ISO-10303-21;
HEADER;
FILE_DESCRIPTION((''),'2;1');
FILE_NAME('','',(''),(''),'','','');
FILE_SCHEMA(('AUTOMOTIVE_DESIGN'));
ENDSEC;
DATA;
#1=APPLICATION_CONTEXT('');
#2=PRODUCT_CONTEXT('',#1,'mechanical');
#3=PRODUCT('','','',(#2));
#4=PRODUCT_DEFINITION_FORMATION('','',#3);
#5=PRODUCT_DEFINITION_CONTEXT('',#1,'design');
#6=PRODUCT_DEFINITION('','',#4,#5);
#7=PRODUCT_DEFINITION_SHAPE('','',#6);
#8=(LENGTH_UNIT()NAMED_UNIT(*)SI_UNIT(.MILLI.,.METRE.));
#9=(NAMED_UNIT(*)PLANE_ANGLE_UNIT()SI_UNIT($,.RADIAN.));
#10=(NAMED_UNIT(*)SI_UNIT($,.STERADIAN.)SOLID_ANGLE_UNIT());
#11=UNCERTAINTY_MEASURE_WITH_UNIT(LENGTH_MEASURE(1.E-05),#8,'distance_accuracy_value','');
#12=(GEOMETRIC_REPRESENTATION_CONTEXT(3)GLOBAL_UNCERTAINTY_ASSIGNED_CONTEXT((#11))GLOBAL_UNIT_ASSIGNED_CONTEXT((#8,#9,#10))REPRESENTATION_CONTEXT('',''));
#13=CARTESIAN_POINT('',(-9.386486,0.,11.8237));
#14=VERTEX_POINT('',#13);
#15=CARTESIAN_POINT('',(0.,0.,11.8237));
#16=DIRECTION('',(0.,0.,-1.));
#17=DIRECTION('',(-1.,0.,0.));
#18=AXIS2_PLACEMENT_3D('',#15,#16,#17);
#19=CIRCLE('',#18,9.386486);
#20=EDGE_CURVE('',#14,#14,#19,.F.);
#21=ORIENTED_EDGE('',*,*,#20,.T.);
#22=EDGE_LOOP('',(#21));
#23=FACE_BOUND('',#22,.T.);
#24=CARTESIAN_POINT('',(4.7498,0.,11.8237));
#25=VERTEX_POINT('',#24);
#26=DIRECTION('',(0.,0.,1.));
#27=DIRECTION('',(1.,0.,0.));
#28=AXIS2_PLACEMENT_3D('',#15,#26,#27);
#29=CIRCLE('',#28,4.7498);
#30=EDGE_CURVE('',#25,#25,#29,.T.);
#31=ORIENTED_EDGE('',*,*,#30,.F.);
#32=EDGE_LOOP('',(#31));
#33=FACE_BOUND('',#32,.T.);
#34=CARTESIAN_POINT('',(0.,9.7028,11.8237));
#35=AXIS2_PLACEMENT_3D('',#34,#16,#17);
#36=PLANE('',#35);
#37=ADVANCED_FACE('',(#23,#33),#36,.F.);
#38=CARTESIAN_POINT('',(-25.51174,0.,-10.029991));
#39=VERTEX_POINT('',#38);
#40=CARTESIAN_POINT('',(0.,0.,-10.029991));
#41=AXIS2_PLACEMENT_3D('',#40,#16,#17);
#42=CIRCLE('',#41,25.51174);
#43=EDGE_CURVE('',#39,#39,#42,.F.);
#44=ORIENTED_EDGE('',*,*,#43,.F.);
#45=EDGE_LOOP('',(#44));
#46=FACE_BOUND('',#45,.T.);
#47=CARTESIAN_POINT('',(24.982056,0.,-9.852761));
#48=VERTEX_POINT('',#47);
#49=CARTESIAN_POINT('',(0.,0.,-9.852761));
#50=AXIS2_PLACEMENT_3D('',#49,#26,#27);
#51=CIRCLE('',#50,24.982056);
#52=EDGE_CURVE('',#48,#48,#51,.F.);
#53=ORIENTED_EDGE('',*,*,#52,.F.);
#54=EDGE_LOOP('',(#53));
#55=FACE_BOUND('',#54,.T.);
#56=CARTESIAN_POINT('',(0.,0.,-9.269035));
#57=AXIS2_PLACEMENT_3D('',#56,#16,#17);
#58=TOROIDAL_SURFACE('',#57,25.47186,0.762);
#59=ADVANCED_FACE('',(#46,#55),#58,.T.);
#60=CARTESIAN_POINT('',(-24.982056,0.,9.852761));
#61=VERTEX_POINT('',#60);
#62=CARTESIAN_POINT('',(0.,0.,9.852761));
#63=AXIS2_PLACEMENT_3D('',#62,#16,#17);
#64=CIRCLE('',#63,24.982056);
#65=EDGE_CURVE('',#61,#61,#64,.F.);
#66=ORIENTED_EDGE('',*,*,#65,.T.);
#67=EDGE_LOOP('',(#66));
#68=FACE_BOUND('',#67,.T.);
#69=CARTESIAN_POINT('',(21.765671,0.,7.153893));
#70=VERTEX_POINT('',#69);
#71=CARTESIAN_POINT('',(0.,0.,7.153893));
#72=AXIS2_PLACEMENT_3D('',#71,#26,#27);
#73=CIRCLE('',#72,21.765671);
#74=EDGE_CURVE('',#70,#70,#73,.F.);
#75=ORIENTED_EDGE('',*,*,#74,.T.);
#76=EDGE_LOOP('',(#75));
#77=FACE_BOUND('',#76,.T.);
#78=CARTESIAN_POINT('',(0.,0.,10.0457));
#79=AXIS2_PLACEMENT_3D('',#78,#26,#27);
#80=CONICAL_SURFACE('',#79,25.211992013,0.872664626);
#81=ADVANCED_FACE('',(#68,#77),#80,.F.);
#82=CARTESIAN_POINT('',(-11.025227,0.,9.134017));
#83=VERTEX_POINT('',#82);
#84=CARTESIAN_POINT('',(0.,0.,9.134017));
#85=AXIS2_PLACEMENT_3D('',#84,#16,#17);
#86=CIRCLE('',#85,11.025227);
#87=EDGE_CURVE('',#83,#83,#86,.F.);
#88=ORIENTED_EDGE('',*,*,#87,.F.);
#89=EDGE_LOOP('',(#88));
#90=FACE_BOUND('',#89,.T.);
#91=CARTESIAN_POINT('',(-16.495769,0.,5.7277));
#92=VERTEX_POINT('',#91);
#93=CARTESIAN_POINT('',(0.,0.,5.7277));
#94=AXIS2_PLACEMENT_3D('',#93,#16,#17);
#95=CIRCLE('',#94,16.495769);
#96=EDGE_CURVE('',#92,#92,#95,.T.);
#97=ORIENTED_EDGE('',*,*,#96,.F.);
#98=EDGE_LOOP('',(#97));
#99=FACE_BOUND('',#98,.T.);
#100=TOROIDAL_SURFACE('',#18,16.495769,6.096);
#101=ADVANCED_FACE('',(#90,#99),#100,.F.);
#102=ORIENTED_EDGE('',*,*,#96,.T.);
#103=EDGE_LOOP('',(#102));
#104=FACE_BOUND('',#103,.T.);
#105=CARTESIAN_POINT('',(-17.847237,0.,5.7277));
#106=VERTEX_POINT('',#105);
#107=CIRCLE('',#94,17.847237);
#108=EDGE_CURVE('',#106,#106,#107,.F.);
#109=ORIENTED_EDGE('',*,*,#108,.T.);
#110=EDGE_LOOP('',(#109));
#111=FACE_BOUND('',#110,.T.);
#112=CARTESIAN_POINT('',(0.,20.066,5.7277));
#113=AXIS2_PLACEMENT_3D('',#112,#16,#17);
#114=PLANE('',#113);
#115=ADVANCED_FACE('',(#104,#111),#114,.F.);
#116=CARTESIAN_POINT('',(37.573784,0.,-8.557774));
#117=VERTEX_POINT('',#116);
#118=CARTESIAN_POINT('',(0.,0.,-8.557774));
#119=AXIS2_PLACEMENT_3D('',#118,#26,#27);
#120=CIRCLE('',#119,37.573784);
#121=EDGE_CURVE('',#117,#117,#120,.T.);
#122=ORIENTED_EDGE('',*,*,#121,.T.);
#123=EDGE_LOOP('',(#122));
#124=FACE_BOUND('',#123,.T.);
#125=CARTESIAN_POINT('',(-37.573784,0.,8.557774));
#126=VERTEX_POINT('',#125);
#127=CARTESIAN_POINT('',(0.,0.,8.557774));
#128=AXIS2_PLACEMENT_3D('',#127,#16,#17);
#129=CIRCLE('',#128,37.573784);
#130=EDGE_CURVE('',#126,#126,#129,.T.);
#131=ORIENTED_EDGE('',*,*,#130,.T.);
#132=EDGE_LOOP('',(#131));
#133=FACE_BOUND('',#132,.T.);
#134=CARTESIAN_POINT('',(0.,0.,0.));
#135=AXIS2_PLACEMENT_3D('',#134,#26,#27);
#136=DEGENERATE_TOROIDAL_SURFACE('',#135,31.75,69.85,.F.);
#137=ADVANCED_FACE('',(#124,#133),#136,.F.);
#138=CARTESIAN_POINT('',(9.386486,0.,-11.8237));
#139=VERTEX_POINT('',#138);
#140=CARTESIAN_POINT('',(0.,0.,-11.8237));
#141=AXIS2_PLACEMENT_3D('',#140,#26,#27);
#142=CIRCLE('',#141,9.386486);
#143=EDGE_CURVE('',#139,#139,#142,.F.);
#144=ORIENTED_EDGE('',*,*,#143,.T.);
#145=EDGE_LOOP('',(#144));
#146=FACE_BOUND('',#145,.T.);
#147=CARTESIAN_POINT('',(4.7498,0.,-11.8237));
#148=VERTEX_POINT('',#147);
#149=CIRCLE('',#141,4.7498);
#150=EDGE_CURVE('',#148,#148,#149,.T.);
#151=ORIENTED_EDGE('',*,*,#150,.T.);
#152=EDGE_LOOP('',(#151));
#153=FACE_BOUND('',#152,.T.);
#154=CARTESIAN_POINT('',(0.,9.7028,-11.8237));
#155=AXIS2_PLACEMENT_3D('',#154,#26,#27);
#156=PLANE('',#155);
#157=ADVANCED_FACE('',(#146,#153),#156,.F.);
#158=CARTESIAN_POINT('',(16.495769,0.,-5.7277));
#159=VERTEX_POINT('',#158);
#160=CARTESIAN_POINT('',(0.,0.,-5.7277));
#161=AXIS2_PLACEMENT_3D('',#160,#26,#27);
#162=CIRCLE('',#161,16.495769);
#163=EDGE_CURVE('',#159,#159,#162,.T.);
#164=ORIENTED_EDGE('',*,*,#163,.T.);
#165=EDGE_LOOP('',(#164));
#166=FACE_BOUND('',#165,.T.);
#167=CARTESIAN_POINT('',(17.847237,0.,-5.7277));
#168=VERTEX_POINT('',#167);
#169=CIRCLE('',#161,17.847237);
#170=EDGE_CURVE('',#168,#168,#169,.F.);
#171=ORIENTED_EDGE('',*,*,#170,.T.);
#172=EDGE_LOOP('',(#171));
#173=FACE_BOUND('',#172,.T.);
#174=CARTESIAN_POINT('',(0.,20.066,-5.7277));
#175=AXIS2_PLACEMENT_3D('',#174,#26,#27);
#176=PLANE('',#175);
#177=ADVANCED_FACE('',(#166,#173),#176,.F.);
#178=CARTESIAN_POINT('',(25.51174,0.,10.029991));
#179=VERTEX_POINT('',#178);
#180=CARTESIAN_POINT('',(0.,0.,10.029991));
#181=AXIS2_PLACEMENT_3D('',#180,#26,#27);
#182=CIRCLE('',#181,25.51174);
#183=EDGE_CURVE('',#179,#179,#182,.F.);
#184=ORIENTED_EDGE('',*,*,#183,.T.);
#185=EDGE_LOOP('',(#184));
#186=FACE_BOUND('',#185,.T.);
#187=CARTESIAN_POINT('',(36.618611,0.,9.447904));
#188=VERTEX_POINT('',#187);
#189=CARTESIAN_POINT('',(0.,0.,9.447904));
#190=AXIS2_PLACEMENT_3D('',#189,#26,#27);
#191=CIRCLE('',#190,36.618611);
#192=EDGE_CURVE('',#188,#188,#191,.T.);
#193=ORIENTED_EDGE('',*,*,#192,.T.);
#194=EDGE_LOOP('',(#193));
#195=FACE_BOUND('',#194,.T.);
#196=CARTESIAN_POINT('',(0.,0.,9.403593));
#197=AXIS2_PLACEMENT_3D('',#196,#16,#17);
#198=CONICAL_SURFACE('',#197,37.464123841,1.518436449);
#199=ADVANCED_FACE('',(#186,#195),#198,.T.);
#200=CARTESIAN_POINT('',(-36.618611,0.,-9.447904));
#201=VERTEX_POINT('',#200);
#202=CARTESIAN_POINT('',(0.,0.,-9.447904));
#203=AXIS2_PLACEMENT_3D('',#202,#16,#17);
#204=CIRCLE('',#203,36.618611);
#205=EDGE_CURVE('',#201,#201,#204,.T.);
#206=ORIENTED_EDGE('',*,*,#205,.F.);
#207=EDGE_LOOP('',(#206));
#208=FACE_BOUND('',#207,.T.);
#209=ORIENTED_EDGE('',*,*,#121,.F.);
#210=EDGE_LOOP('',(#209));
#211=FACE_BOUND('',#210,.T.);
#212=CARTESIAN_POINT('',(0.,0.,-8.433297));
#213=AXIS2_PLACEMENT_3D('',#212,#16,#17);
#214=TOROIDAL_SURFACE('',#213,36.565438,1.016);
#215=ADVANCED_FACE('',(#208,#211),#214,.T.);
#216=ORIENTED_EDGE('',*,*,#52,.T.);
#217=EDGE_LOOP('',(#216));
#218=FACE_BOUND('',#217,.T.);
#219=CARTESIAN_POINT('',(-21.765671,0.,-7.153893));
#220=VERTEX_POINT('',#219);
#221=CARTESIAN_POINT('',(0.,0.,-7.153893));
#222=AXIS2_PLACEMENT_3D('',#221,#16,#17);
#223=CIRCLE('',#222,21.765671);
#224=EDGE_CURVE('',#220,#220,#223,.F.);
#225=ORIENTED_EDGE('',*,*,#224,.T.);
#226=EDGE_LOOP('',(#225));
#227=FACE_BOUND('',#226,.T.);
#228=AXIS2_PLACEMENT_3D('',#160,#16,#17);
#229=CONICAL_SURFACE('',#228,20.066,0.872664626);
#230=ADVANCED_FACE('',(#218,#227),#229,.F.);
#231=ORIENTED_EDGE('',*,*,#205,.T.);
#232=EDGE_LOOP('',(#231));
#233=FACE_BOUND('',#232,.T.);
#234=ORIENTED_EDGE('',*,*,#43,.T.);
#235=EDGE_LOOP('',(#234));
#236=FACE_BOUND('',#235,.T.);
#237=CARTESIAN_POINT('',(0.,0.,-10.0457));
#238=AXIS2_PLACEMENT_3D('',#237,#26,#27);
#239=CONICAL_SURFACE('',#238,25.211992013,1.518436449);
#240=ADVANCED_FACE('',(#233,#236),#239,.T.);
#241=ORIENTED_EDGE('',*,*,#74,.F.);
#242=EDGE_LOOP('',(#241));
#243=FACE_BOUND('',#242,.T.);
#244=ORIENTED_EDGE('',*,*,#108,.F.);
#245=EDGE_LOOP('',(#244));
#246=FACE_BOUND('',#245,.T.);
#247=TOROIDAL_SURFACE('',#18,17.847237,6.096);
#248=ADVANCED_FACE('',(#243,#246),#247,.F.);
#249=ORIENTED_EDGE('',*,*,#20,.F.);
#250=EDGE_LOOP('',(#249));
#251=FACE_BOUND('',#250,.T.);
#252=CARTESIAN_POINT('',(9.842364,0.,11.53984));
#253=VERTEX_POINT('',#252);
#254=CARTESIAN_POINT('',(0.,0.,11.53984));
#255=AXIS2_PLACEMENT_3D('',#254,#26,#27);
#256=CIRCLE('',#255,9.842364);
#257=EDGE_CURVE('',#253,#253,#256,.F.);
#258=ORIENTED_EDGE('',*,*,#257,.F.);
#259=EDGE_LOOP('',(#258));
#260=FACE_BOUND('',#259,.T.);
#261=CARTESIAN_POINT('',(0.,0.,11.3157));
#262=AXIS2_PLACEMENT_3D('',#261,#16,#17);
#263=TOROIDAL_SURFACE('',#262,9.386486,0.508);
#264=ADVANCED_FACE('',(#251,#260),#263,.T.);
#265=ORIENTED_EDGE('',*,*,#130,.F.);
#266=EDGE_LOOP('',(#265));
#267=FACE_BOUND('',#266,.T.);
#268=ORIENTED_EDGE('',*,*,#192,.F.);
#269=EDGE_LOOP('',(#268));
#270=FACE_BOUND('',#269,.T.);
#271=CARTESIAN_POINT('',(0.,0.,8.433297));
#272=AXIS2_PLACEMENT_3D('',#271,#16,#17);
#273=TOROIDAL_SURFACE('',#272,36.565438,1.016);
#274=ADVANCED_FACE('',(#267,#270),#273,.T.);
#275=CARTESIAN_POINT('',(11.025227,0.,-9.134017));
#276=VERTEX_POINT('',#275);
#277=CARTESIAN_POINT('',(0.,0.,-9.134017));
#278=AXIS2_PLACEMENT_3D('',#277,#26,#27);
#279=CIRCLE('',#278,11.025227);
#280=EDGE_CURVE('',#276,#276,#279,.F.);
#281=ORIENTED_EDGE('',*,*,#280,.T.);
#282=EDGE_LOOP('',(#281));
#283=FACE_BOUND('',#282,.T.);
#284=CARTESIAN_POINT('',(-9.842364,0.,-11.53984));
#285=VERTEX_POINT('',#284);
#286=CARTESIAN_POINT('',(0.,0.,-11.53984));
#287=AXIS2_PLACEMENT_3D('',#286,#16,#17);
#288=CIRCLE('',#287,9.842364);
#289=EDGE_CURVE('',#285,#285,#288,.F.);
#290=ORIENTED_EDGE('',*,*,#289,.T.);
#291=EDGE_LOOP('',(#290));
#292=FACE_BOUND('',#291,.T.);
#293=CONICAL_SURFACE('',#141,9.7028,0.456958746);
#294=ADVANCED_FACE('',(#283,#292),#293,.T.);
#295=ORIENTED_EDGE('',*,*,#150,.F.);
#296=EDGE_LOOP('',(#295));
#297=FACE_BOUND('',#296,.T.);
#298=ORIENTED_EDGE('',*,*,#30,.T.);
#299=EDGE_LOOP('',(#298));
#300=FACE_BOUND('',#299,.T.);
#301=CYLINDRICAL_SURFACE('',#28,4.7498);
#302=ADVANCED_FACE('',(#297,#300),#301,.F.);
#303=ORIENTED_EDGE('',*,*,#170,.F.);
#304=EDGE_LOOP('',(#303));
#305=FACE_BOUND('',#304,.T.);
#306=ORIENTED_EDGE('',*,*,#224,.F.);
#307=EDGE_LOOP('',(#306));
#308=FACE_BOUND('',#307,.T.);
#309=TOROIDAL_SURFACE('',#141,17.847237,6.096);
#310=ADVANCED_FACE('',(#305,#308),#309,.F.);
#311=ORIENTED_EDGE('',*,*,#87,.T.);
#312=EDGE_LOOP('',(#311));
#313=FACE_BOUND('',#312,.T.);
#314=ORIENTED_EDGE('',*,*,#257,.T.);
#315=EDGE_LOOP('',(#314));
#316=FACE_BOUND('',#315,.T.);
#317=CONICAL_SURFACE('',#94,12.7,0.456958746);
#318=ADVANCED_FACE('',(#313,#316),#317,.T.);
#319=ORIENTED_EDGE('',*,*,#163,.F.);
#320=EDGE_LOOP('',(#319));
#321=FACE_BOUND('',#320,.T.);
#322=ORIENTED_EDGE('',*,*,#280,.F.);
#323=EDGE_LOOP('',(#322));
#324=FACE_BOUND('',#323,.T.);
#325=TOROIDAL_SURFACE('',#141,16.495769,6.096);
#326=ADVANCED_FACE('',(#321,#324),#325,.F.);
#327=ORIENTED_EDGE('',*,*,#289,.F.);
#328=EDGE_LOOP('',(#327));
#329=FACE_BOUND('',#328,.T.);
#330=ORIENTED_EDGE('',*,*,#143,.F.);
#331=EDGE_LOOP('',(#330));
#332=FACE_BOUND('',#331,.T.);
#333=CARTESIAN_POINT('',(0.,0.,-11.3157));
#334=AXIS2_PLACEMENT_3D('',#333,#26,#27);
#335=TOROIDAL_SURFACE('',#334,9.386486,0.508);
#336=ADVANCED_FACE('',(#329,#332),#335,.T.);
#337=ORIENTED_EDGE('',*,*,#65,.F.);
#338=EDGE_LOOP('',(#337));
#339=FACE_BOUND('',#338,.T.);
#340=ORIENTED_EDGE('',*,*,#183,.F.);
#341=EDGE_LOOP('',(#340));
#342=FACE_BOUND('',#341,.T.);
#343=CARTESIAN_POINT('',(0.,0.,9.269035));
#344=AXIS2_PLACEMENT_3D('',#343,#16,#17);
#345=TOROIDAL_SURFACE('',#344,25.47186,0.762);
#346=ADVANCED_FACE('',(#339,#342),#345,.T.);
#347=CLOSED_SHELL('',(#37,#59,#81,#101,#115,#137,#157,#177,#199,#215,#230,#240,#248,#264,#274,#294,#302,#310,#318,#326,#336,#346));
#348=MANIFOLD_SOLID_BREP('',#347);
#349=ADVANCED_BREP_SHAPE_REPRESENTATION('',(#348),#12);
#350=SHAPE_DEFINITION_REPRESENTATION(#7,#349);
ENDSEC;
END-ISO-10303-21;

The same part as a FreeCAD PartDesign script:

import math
import FreeCAD as App
import Part
import Sketcher

V = App.Vector
Q = App.Units.Quantity


def edges_at(feature, points):
    """Names of the edges that pass closest to the given points."""
    edges = feature.Shape.Edges
    near = lambda p: min(range(len(edges)), key=lambda i: edges[i].distToShape(Part.Vertex(*p))[0])
    return sorted({f"Edge{near(p) + 1}" for p in points})


def add_polygon(sketch, points):
    """Adds a closed chain of lines whose ends are joined by coincident constraints."""
    first, n = sketch.GeometryCount, len(points)
    for a, b in zip(points, points[1:] + points[:1]):
        sketch.addGeometry(Part.LineSegment(App.Vector(*a, 0), App.Vector(*b, 0)), False)
    for i in range(n):
        sketch.addConstraint(Sketcher.Constraint("Coincident", first + i, 2, first + (i + 1) % n, 1))

doc = App.newDocument("Part")
params = doc.addObject("Spreadsheet::Sheet", "Params")
for row, (alias, value) in enumerate([
    ("sketch1_radius", "2.75 in"),
    ("sketch1_width", "0.29 in"),
    ("sketch1_width2", "0.382 in"),
    ("sketch1_height", "0.931 in"),
    ("revolution_angle", "360 deg"),
    ("sketch2_width", "0.187 in"),
    ("sketch2_height", "0.931 in"),
    ("groove_angle", "360 deg"),
    ("fillet_radius", "0.04 in"),
    ("fillet2_radius", "0.24 in"),
    ("fillet3_radius", "0.03 in"),
    ("fillet4_radius", "0.02 in"),
    ("sketch3_width", "0.187 in"),
    ("sketch3_height", "0.931 in"),
    ("revolution2_angle", "360 deg"),
    ("sketch4_diameter", "0.25 in"),
    ("sketch5_diameter", "0.374 in"),
], start=1):
    params.set(f"A{row}", alias)
    params.set(f"B{row}", "=" + value)
    params.setAlias(f"B{row}", alias)

body = doc.addObject("PartDesign::Body", "Body")

# Sketch on YZ plane
sketch1 = body.newObject("Sketcher::SketchObject", "Sketch")
sketch1.AttachmentSupport = (doc.getObject("YZ_Plane"), [""])
sketch1.MapMode = "FlatFace"
sketch1.addGeometry([
    Part.LineSegment(V(20, -6, 0), V(25, -10, 0)),  # 0
    Part.LineSegment(V(25, -10, 0), V(37, -9, 0)),  # 1
    Part.ArcOfCircle(Part.Circle(V(-32, 0, 0), V(0, 0, 1), 70), math.radians(-7.74), math.radians(7.74)),  # 2
    Part.LineSegment(V(37, 9, 0), V(25, 10, 0)),  # 3
    Part.LineSegment(V(25, 10, 0), V(20, 6, 0)),  # 4
    Part.LineSegment(V(20, 6, 0), V(13, 6, 0)),  # 5
    Part.LineSegment(V(13, 6, 0), V(10, 12, 0)),  # 6
    Part.LineSegment(V(10, 12, 0), V(0, 12, 0)),  # 7
    Part.LineSegment(V(0, 12, 0), V(0, -12, 0)),  # 8
    Part.LineSegment(V(0, -12, 0), V(10, -12, 0)),  # 9
    Part.LineSegment(V(10, -12, 0), V(13, -6, 0)),  # 10
    Part.LineSegment(V(13, -6, 0), V(20, -6, 0)),  # 11
], False)
sketch1.addConstraint([
    Sketcher.Constraint("Coincident", 0, 2, 1, 1),
    Sketcher.Constraint("Coincident", 1, 2, 2, 1),
    Sketcher.Constraint("Coincident", 2, 2, 3, 1),
    Sketcher.Constraint("Coincident", 3, 2, 4, 1),
    Sketcher.Constraint("Coincident", 4, 2, 5, 1),
    Sketcher.Constraint("Coincident", 5, 2, 6, 1),
    Sketcher.Constraint("Coincident", 6, 2, 7, 1),
    Sketcher.Constraint("Coincident", 7, 2, 8, 1),
    Sketcher.Constraint("Coincident", 8, 2, 9, 1),
    Sketcher.Constraint("Coincident", 9, 2, 10, 1),
    Sketcher.Constraint("Coincident", 10, 2, 11, 1),
    Sketcher.Constraint("Coincident", 11, 2, 0, 1),
    Sketcher.Constraint("Horizontal", 5),
    Sketcher.Constraint("Horizontal", 7),
    Sketcher.Constraint("Vertical", 8),
    Sketcher.Constraint("Horizontal", 9),
    Sketcher.Constraint("Horizontal", 11),
    Sketcher.Constraint("Symmetric", 7, 2, 8, 2, -1, 1),
    Sketcher.Constraint("Symmetric", 1, 2, 2, 2, -1),
    Sketcher.Constraint("Symmetric", 0, 2, 3, 2, -1),
    Sketcher.Constraint("Symmetric", 5, 2, 10, 2, -1),
    Sketcher.Constraint("Vertical", 6, 2, 9, 2),
    Sketcher.Constraint("Vertical", 4, 2, 11, 2),
    Sketcher.Constraint("Radius", 2, Q("2.75 in")),
    Sketcher.Constraint("Angle", 0, Q("-40 deg")),
    Sketcher.Constraint("Angle", 1, Q("3 deg")),
    Sketcher.Constraint("DistanceX", 5, 2, 5, 1, Q("0.29 in")),
    Sketcher.Constraint("DistanceX", -1, 1, 5, 2, Q("0.5 in")),
    Sketcher.Constraint("DistanceX", 7, 2, 7, 1, Q("0.382 in")),
    Sketcher.Constraint("DistanceY", 8, 2, 8, 1, Q("0.931 in")),
    Sketcher.Constraint("DistanceX", 2, 3, -1, 1, Q("1.25 in")),
    Sketcher.Constraint("DistanceY", 4, 2, 3, 2, Q("0.17 in")),
    Sketcher.Constraint("DistanceY", 5, 2, 6, 2, Q("0.24 in")),
])
sketch1.setExpression("Constraints[23]", "Params.sketch1_radius")
sketch1.setExpression("Constraints[26]", "Params.sketch1_width")
sketch1.setExpression("Constraints[28]", "Params.sketch1_width2")
sketch1.setExpression("Constraints[29]", "Params.sketch1_height")
revolution = body.newObject("PartDesign::Revolution", "Revolution")
revolution.Profile = sketch1
revolution.ReferenceAxis = (sketch1, ["V_Axis"])
revolution.setExpression("Angle", "Params.revolution_angle")

# Sketch on YZ plane
sketch2 = body.newObject("Sketcher::SketchObject", "Sketch001")
sketch2.AttachmentSupport = (doc.getObject("YZ_Plane"), [""])
sketch2.MapMode = "FlatFace"
add_polygon(sketch2, [(4.7, 11.8), (0, 11.8), (0, -11.8), (4.7, -11.8)])  # lines 0-3
sketch2.addConstraint([
    Sketcher.Constraint("Horizontal", 0),
    Sketcher.Constraint("Vertical", 1),
    Sketcher.Constraint("Horizontal", 2),
    Sketcher.Constraint("Vertical", 3),
    Sketcher.Constraint("Symmetric", 0, 2, 1, 2, -1, 1),
    Sketcher.Constraint("DistanceX", 0, 2, 0, 1, Q("0.187 in")),
    Sketcher.Constraint("DistanceY", 1, 2, 1, 1, Q("0.931 in")),
])
sketch2.setExpression("Constraints[9]", "Params.sketch2_width")
sketch2.setExpression("Constraints[10]", "Params.sketch2_height")
groove = body.newObject("PartDesign::Groove", "Groove")
groove.Profile = sketch2
groove.ReferenceAxis = (sketch2, ["V_Axis"])
groove.setExpression("Angle", "Params.groove_angle")
doc.recompute()

fillet = body.newObject("PartDesign::Fillet", "Fillet")
fillet.Base = (groove, edges_at(groove, [(-37.464, 0, -9.404), (-37.464, 0, 9.404)]))
fillet.setExpression("Radius", "Params.fillet_radius")
doc.recompute()

fillet2 = body.newObject("PartDesign::Fillet", "Fillet001")
fillet2.Base = (fillet, edges_at(fillet, [
    (-20.066, 0, 5.728),
    (-12.7, 0, 5.728),
    (-12.7, 0, -5.728),
    (-20.066, 0, -5.728),
]))
fillet2.setExpression("Radius", "Params.fillet2_radius")
doc.recompute()

fillet3 = body.newObject("PartDesign::Fillet", "Fillet002")
fillet3.Base = (fillet2, edges_at(fillet2, [(-25.212, 0, -10.046), (-25.212, 0, 10.046)]))
fillet3.setExpression("Radius", "Params.fillet3_radius")
doc.recompute()

fillet4 = body.newObject("PartDesign::Fillet", "Fillet003")
fillet4.Base = (fillet3, edges_at(fillet3, [(-9.703, 0, 11.824), (-9.703, 0, -11.824)]))
fillet4.setExpression("Radius", "Params.fillet4_radius")
body2 = doc.addObject("PartDesign::Body", "Body001")

# Sketch on YZ plane
sketch3 = body2.newObject("Sketcher::SketchObject", "Sketch002")
sketch3.AttachmentSupport = (doc.getObject("YZ_Plane001"), [""])
sketch3.MapMode = "FlatFace"
add_polygon(sketch3, [(4.7, 11.8), (0, 11.8), (0, -11.8), (4.7, -11.8)])  # lines 0-3
sketch3.addConstraint([
    Sketcher.Constraint("Horizontal", 0),
    Sketcher.Constraint("Vertical", 1),
    Sketcher.Constraint("Horizontal", 2),
    Sketcher.Constraint("Vertical", 3),
    Sketcher.Constraint("Symmetric", 0, 2, 1, 2, -1, 1),
    Sketcher.Constraint("DistanceX", 0, 2, 0, 1, Q("0.187 in")),
    Sketcher.Constraint("DistanceY", 1, 2, 1, 1, Q("0.931 in")),
])
sketch3.setExpression("Constraints[9]", "Params.sketch3_width")
sketch3.setExpression("Constraints[10]", "Params.sketch3_height")
revolution2 = body2.newObject("PartDesign::Revolution", "Revolution001")
revolution2.Profile = sketch3
revolution2.ReferenceAxis = (sketch3, ["V_Axis"])
revolution2.setExpression("Angle", "Params.revolution2_angle")

# Sketch on XY plane
sketch4 = body2.newObject("Sketcher::SketchObject", "Sketch003")
sketch4.AttachmentSupport = (doc.getObject("XY_Plane001"), [""])
sketch4.MapMode = "FlatFace"
sketch4.addGeometry(Part.Circle(V(0, 0, 0), V(0, 0, 1), 3.2), False)
sketch4.addConstraint([
    Sketcher.Constraint("Coincident", 0, 3, -1, 1),
    Sketcher.Constraint("Diameter", 0, Q("0.25 in")),
])
sketch4.setExpression("Constraints[1]", "Params.sketch4_diameter")
pocket1 = body2.newObject("PartDesign::Pocket", "Pocket")
pocket1.Profile = sketch4
pocket1.Type = "ThroughAll"
pocket1.Midplane = True

# Sketch on XY plane
sketch5 = body2.newObject("Sketcher::SketchObject", "Sketch004")
sketch5.AttachmentSupport = (doc.getObject("XY_Plane001"), [""])
sketch5.MapMode = "FlatFace"
sketch5.AttachmentOffset = App.Placement(V(0, 0, -0.4655 * 25.4), App.Rotation())
sketch5.addGeometry(Part.Circle(V(0, 0, 0), V(0, 0, 1), 4.7), False)
sketch5.addConstraint([
    Sketcher.Constraint("Coincident", 0, 3, -1, 1),
    Sketcher.Constraint("Diameter", 0, Q("0.374 in")),
])
sketch5.setExpression("Constraints[1]", "Params.sketch5_diameter")
pocket2 = body2.newObject("PartDesign::Pocket", "Pocket001")
pocket2.Profile = sketch5
pocket2.Type = "ThroughAll"
pocket2.Reversed = True

doc.recompute()
